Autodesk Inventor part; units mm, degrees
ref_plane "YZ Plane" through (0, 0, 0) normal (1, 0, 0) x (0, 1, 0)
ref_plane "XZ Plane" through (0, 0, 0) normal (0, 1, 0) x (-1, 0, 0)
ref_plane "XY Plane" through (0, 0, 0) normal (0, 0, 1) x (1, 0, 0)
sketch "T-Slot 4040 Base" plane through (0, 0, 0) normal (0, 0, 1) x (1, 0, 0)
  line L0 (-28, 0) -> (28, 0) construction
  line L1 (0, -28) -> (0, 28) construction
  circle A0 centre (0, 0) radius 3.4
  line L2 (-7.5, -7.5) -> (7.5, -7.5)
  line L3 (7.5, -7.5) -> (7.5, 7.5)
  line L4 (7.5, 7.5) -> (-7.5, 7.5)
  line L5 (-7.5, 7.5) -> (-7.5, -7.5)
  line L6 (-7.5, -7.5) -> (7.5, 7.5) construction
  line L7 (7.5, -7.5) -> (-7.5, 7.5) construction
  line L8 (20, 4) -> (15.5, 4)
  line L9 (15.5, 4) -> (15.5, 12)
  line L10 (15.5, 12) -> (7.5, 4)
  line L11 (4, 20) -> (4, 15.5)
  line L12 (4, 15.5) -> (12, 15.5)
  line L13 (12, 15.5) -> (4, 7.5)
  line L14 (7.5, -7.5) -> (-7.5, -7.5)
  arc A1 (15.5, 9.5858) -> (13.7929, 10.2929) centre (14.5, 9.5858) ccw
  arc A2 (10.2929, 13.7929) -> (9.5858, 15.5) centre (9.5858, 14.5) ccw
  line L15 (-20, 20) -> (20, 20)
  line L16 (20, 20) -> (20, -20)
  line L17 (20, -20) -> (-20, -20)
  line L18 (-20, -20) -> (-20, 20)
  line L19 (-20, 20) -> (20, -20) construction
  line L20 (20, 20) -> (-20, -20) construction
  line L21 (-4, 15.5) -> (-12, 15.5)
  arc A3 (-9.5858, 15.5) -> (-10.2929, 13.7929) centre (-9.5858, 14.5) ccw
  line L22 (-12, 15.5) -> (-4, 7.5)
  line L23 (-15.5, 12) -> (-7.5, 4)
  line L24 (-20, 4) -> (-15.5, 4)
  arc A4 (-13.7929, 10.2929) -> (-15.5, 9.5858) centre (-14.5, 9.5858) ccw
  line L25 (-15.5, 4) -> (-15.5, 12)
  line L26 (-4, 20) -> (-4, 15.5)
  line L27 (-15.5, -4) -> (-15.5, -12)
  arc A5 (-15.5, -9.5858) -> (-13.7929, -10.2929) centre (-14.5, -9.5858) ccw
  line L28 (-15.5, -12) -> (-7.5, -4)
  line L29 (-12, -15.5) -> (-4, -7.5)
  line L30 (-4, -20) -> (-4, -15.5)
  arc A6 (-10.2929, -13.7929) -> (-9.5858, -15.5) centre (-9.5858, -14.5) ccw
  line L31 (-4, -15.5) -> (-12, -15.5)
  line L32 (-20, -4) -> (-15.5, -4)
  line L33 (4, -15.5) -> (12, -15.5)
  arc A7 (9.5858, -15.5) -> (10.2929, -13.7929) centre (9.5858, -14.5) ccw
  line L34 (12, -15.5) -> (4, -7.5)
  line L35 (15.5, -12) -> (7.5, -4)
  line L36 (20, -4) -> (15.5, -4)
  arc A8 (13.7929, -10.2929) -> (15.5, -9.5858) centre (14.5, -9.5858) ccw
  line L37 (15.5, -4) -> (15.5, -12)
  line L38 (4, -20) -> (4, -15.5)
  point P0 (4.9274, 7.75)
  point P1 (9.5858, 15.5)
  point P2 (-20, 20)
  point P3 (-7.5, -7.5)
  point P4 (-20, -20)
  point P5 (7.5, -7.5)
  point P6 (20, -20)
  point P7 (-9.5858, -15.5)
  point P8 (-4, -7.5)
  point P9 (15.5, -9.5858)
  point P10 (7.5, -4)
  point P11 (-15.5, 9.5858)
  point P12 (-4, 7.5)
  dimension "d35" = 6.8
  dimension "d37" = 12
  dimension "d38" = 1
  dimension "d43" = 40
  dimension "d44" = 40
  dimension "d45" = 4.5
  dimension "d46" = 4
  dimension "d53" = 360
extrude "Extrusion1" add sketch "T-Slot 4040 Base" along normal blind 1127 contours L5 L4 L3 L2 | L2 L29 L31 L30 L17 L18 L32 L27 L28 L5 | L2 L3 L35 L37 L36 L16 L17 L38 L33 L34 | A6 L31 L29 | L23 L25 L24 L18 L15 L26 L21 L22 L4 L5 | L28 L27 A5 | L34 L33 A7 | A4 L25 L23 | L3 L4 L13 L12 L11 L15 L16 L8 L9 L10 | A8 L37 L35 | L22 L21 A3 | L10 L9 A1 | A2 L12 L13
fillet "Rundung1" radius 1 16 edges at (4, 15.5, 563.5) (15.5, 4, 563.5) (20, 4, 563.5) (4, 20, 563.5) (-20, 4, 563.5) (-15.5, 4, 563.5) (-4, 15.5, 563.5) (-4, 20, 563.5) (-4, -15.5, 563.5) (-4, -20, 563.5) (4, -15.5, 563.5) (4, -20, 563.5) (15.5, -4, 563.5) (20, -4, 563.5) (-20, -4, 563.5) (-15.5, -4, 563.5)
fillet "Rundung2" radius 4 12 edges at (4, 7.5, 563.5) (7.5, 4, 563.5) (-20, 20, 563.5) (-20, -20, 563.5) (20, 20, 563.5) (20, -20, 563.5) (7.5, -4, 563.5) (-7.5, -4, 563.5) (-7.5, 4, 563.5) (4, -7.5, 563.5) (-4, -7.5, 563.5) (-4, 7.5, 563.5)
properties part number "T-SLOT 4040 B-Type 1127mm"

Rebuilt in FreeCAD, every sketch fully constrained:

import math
import FreeCAD as App
import Part
import Sketcher


def edges_at(feature, points):
    """Names of the edges that pass closest to the given points."""
    edges = feature.Shape.Edges
    near = lambda p: min(range(len(edges)), key=lambda i: edges[i].distToShape(Part.Vertex(*p))[0])
    return sorted({f"Edge{near(p) + 1}" for p in points})

doc = App.newDocument("Part")
params = doc.addObject("Spreadsheet::Sheet", "Params")
for row, (alias, value) in enumerate([
    ("sketch1_radius", "1 mm"),
    ("sketch1_diameter", "6.8 mm"),
    ("sketch1_width", "4.5 mm"),
    ("sketch1_width2", "16 mm"),
    ("pad1_length", "1127 mm"),
    ("fillet_radius", "1 mm"),
    ("fillet2_radius", "4 mm"),
], start=1):
    params.set(f"A{row}", alias)
    params.set(f"B{row}", "=" + value)
    params.setAlias(f"B{row}", alias)

body = doc.addObject("PartDesign::Body", "Body")

# Sketch on XY plane
sketch1 = body.newObject("Sketcher::SketchObject", "Sketch")
sketch1.AttachmentSupport = (doc.getObject("XY_Plane"), [""])
sketch1.MapMode = "FlatFace"
sketch1.addGeometry(Part.LineSegment(App.Vector(-7.5, 4, 0), App.Vector(-7.5, -4, 0)), False)
sketch1.addGeometry(Part.LineSegment(App.Vector(-7.5, -4, 0), App.Vector(-13.8, -10.3, 0)), False)
sketch1.addGeometry(Part.ArcOfCircle(Part.Circle(App.Vector(-14.5, -9.6, 0), App.Vector(0, 0, 1), 1), math.radians(180), math.radians(315)), False)
sketch1.addGeometry(Part.LineSegment(App.Vector(-15.5, -9.6, 0), App.Vector(-15.5, -4, 0)), False)
sketch1.addGeometry(Part.LineSegment(App.Vector(-15.5, -4, 0), App.Vector(-20, -4, 0)), False)
sketch1.addGeometry(Part.LineSegment(App.Vector(-20, -4, 0), App.Vector(-20, -20, 0)), False)
sketch1.addGeometry(Part.LineSegment(App.Vector(-20, -20, 0), App.Vector(-4, -20, 0)), False)
sketch1.addGeometry(Part.LineSegment(App.Vector(-4, -20, 0), App.Vector(-4, -15.5, 0)), False)
sketch1.addGeometry(Part.LineSegment(App.Vector(-4, -15.5, 0), App.Vector(-9.6, -15.5, 0)), False)
sketch1.addGeometry(Part.ArcOfCircle(Part.Circle(App.Vector(-9.6, -14.5, 0), App.Vector(0, 0, 1), 1), math.radians(135), math.radians(270)), False)
sketch1.addGeometry(Part.LineSegment(App.Vector(-10.3, -13.8, 0), App.Vector(-4, -7.5, 0)), False)
sketch1.addGeometry(Part.LineSegment(App.Vector(-4, -7.5, 0), App.Vector(4, -7.5, 0)), False)
sketch1.addGeometry(Part.LineSegment(App.Vector(4, -7.5, 0), App.Vector(10.3, -13.8, 0)), False)
sketch1.addGeometry(Part.ArcOfCircle(Part.Circle(App.Vector(9.6, -14.5, 0), App.Vector(0, 0, 1), 1), math.radians(-90), math.radians(45)), False)
sketch1.addGeometry(Part.LineSegment(App.Vector(9.6, -15.5, 0), App.Vector(4, -15.5, 0)), False)
sketch1.addGeometry(Part.LineSegment(App.Vector(4, -15.5, 0), App.Vector(4, -20, 0)), False)
sketch1.addGeometry(Part.LineSegment(App.Vector(4, -20, 0), App.Vector(20, -20, 0)), False)
sketch1.addGeometry(Part.LineSegment(App.Vector(20, -20, 0), App.Vector(20, -4, 0)), False)
sketch1.addGeometry(Part.LineSegment(App.Vector(20, -4, 0), App.Vector(15.5, -4, 0)), False)
sketch1.addGeometry(Part.LineSegment(App.Vector(15.5, -4, 0), App.Vector(15.5, -9.6, 0)), False)
sketch1.addGeometry(Part.ArcOfCircle(Part.Circle(App.Vector(14.5, -9.6, 0), App.Vector(0, 0, 1), 1), math.radians(-135), math.radians(0)), False)
sketch1.addGeometry(Part.LineSegment(App.Vector(13.8, -10.3, 0), App.Vector(7.5, -4, 0)), False)
sketch1.addGeometry(Part.LineSegment(App.Vector(7.5, -4, 0), App.Vector(7.5, 4, 0)), False)
sketch1.addGeometry(Part.LineSegment(App.Vector(7.5, 4, 0), App.Vector(13.8, 10.3, 0)), False)
sketch1.addGeometry(Part.ArcOfCircle(Part.Circle(App.Vector(14.5, 9.6, 0), App.Vector(0, 0, 1), 1), math.radians(0), math.radians(135)), False)
sketch1.addGeometry(Part.LineSegment(App.Vector(15.5, 9.6, 0), App.Vector(15.5, 4, 0)), False)
sketch1.addGeometry(Part.LineSegment(App.Vector(15.5, 4, 0), App.Vector(20, 4, 0)), False)
sketch1.addGeometry(Part.LineSegment(App.Vector(20, 4, 0), App.Vector(20, 20, 0)), False)
sketch1.addGeometry(Part.LineSegment(App.Vector(20, 20, 0), App.Vector(4, 20, 0)), False)
sketch1.addGeometry(Part.LineSegment(App.Vector(4, 20, 0), App.Vector(4, 15.5, 0)), False)
sketch1.addGeometry(Part.LineSegment(App.Vector(4, 15.5, 0), App.Vector(9.6, 15.5, 0)), False)
sketch1.addGeometry(Part.ArcOfCircle(Part.Circle(App.Vector(9.6, 14.5, 0), App.Vector(0, 0, 1), 1), math.radians(-45), math.radians(90)), False)
sketch1.addGeometry(Part.LineSegment(App.Vector(10.3, 13.8, 0), App.Vector(4, 7.5, 0)), False)
sketch1.addGeometry(Part.LineSegment(App.Vector(4, 7.5, 0), App.Vector(-4, 7.5, 0)), False)
sketch1.addGeometry(Part.LineSegment(App.Vector(-4, 7.5, 0), App.Vector(-10.3, 13.8, 0)), False)
sketch1.addGeometry(Part.ArcOfCircle(Part.Circle(App.Vector(-9.6, 14.5, 0), App.Vector(0, 0, 1), 1), math.radians(90), math.radians(225)), False)
sketch1.addGeometry(Part.LineSegment(App.Vector(-9.6, 15.5, 0), App.Vector(-4, 15.5, 0)), False)
sketch1.addGeometry(Part.LineSegment(App.Vector(-4, 15.5, 0), App.Vector(-4, 20, 0)), False)
sketch1.addGeometry(Part.LineSegment(App.Vector(-4, 20, 0), App.Vector(-20, 20, 0)), False)
sketch1.addGeometry(Part.LineSegment(App.Vector(-20, 20, 0), App.Vector(-20, 4, 0)), False)
sketch1.addGeometry(Part.LineSegment(App.Vector(-20, 4, 0), App.Vector(-15.5, 4, 0)), False)
sketch1.addGeometry(Part.LineSegment(App.Vector(-15.5, 4, 0), App.Vector(-15.5, 9.6, 0)), False)
sketch1.addGeometry(Part.ArcOfCircle(Part.Circle(App.Vector(-14.5, 9.6, 0), App.Vector(0, 0, 1), 1), math.radians(45), math.radians(180)), False)
sketch1.addGeometry(Part.LineSegment(App.Vector(-13.8, 10.3, 0), App.Vector(-7.5, 4, 0)), False)
sketch1.addGeometry(Part.Circle(App.Vector(0, 0, 0), App.Vector(0, 0, 1), 3.4), False)
sketch1.addConstraint(Sketcher.Constraint("Coincident", 0, 2, 1, 1))
sketch1.addConstraint(Sketcher.Constraint("Tangent", 1, 2, 2, 2))
sketch1.addConstraint(Sketcher.Constraint("Tangent", 2, 1, 3, 1))
sketch1.addConstraint(Sketcher.Constraint("Coincident", 3, 2, 4, 1))
sketch1.addConstraint(Sketcher.Constraint("Coincident", 4, 2, 5, 1))
sketch1.addConstraint(Sketcher.Constraint("Coincident", 5, 2, 6, 1))
sketch1.addConstraint(Sketcher.Constraint("Coincident", 6, 2, 7, 1))
sketch1.addConstraint(Sketcher.Constraint("Coincident", 7, 2, 8, 1))
sketch1.addConstraint(Sketcher.Constraint("Tangent", 8, 2, 9, 2))
sketch1.addConstraint(Sketcher.Constraint("Tangent", 9, 1, 10, 1))
sketch1.addConstraint(Sketcher.Constraint("Coincident", 10, 2, 11, 1))
sketch1.addConstraint(Sketcher.Constraint("Coincident", 11, 2, 12, 1))
sketch1.addConstraint(Sketcher.Constraint("Tangent", 12, 2, 13, 2))
sketch1.addConstraint(Sketcher.Constraint("Tangent", 13, 1, 14, 1))
sketch1.addConstraint(Sketcher.Constraint("Coincident", 14, 2, 15, 1))
sketch1.addConstraint(Sketcher.Constraint("Coincident", 15, 2, 16, 1))
sketch1.addConstraint(Sketcher.Constraint("Coincident", 16, 2, 17, 1))
sketch1.addConstraint(Sketcher.Constraint("Coincident", 17, 2, 18, 1))
sketch1.addConstraint(Sketcher.Constraint("Coincident", 18, 2, 19, 1))
sketch1.addConstraint(Sketcher.Constraint("Tangent", 19, 2, 20, 2))
sketch1.addConstraint(Sketcher.Constraint("Tangent", 20, 1, 21, 1))
sketch1.addConstraint(Sketcher.Constraint("Coincident", 21, 2, 22, 1))
sketch1.addConstraint(Sketcher.Constraint("Coincident", 22, 2, 23, 1))
sketch1.addConstraint(Sketcher.Constraint("Tangent", 23, 2, 24, 2))
sketch1.addConstraint(Sketcher.Constraint("Tangent", 24, 1, 25, 1))
sketch1.addConstraint(Sketcher.Constraint("Coincident", 25, 2, 26, 1))
sketch1.addConstraint(Sketcher.Constraint("Coincident", 26, 2, 27, 1))
sketch1.addConstraint(Sketcher.Constraint("Coincident", 27, 2, 28, 1))
sketch1.addConstraint(Sketcher.Constraint("Coincident", 28, 2, 29, 1))
sketch1.addConstraint(Sketcher.Constraint("Coincident", 29, 2, 30, 1))
sketch1.addConstraint(Sketcher.Constraint("Tangent", 30, 2, 31, 2))
sketch1.addConstraint(Sketcher.Constraint("Tangent", 31, 1, 32, 1))
sketch1.addConstraint(Sketcher.Constraint("Coincident", 32, 2, 33, 1))
sketch1.addConstraint(Sketcher.Constraint("Coincident", 33, 2, 34, 1))
sketch1.addConstraint(Sketcher.Constraint("Tangent", 34, 2, 35, 2))
sketch1.addConstraint(Sketcher.Constraint("Tangent", 35, 1, 36, 1))
sketch1.addConstraint(Sketcher.Constraint("Coincident", 36, 2, 37, 1))
sketch1.addConstraint(Sketcher.Constraint("Coincident", 37, 2, 38, 1))
sketch1.addConstraint(Sketcher.Constraint("Coincident", 38, 2, 39, 1))
sketch1.addConstraint(Sketcher.Constraint("Coincident", 39, 2, 40, 1))
sketch1.addConstraint(Sketcher.Constraint("Coincident", 40, 2, 41, 1))
sketch1.addConstraint(Sketcher.Constraint("Tangent", 41, 2, 42, 2))
sketch1.addConstraint(Sketcher.Constraint("Tangent", 42, 1, 43, 1))
sketch1.addConstraint(Sketcher.Constraint("Coincident", 43, 2, 0, 1))
sketch1.addConstraint(Sketcher.Constraint("Vertical", 0))
sketch1.addConstraint(Sketcher.Constraint("Vertical", 3))
sketch1.addConstraint(Sketcher.Constraint("Horizontal", 4))
sketch1.addConstraint(Sketcher.Constraint("Vertical", 5))
sketch1.addConstraint(Sketcher.Constraint("Horizontal", 6))
sketch1.addConstraint(Sketcher.Constraint("Vertical", 7))
sketch1.addConstraint(Sketcher.Constraint("Horizontal", 8))
sketch1.addConstraint(Sketcher.Constraint("Horizontal", 11))
sketch1.addConstraint(Sketcher.Constraint("Horizontal", 14))
sketch1.addConstraint(Sketcher.Constraint("Vertical", 15))
sketch1.addConstraint(Sketcher.Constraint("Horizontal", 16))
sketch1.addConstraint(Sketcher.Constraint("Vertical", 17))
sketch1.addConstraint(Sketcher.Constraint("Horizontal", 18))
sketch1.addConstraint(Sketcher.Constraint("Vertical", 19))
sketch1.addConstraint(Sketcher.Constraint("Vertical", 22))
sketch1.addConstraint(Sketcher.Constraint("Vertical", 25))
sketch1.addConstraint(Sketcher.Constraint("Horizontal", 26))
sketch1.addConstraint(Sketcher.Constraint("Vertical", 27))
sketch1.addConstraint(Sketcher.Constraint("Horizontal", 28))
sketch1.addConstraint(Sketcher.Constraint("Vertical", 29))
sketch1.addConstraint(Sketcher.Constraint("Horizontal", 30))
sketch1.addConstraint(Sketcher.Constraint("Horizontal", 33))
sketch1.addConstraint(Sketcher.Constraint("Horizontal", 36))
sketch1.addConstraint(Sketcher.Constraint("Vertical", 37))
sketch1.addConstraint(Sketcher.Constraint("Horizontal", 38))
sketch1.addConstraint(Sketcher.Constraint("Vertical", 39))
sketch1.addConstraint(Sketcher.Constraint("Horizontal", 40))
sketch1.addConstraint(Sketcher.Constraint("Vertical", 41))
sketch1.addConstraint(Sketcher.Constraint("Coincident", 44, 3, -1, 1))
sketch1.addConstraint(Sketcher.Constraint("Equal", 2, 9))
sketch1.addConstraint(Sketcher.Constraint("Equal", 9, 13))
sketch1.addConstraint(Sketcher.Constraint("Equal", 13, 20))
sketch1.addConstraint(Sketcher.Constraint("Equal", 20, 24))
sketch1.addConstraint(Sketcher.Constraint("Equal", 24, 31))
sketch1.addConstraint(Sketcher.Constraint("Equal", 31, 35))
sketch1.addConstraint(Sketcher.Constraint("Equal", 35, 42))
sketch1.addConstraint(Sketcher.Constraint("Symmetric", 2, 3, 24, 3, -1, 1))
sketch1.addConstraint(Sketcher.Constraint("Symmetric", 9, 3, 31, 3, -1, 1))
sketch1.addConstraint(Sketcher.Constraint("Symmetric", 13, 3, 35, 3, -1, 1))
sketch1.addConstraint(Sketcher.Constraint("Symmetric", 20, 3, 42, 3, -1, 1))
sketch1.addConstraint(Sketcher.Constraint("Symmetric", 0, 2, 22, 2, -1, 1))
sketch1.addConstraint(Sketcher.Constraint("Symmetric", 4, 2, 26, 2, -1, 1))
sketch1.addConstraint(Sketcher.Constraint("Symmetric", 6, 2, 28, 2, -1, 1))
sketch1.addConstraint(Sketcher.Constraint("Symmetric", 10, 2, 32, 2, -1, 1))
sketch1.addConstraint(Sketcher.Constraint("Symmetric", 15, 2, 37, 2, -1, 1))
sketch1.addConstraint(Sketcher.Constraint("Symmetric", 17, 2, 39, 2, -1, 1))
sketch1.addConstraint(Sketcher.Constraint("Symmetric", 9, 3, 13, 3, -2))
sketch1.addConstraint(Sketcher.Constraint("Symmetric", 2, 3, 20, 3, -2))
sketch1.addConstraint(Sketcher.Constraint("Symmetric", 6, 2, 15, 2, -2))
sketch1.addConstraint(Sketcher.Constraint("Symmetric", 4, 2, 17, 2, -2))
sketch1.addConstraint(Sketcher.Constraint("Parallel", 1, 10))
sketch1.addConstraint(Sketcher.Constraint("Perpendicular", 10, 12))
sketch1.addConstraint(Sketcher.Constraint("Parallel", 12, 21))
sketch1.addConstraint(Sketcher.Constraint("Perpendicular", 32, 34))
sketch1.addConstraint(Sketcher.Constraint("Parallel", 34, 43))
sketch1.addConstraint(Sketcher.Constraint("Horizontal", 0, 2, 3, 2))
sketch1.addConstraint(Sketcher.Constraint("Horizontal", 9, 1, 12, 2))
sketch1.addConstraint(Sketcher.Constraint("Vertical", 7, 2, 10, 2))
sketch1.addConstraint(Sketcher.Constraint("Equal", 33, 0))
sketch1.addConstraint(Sketcher.Constraint("Equal", 36, 3))
sketch1.addConstraint(Sketcher.Constraint("Equal", 38, 5))
sketch1.addConstraint(Sketcher.Constraint("Equal", 40, 7))
sketch1.addConstraint(Sketcher.Constraint("Radius", 2, 1.0))
sketch1.addConstraint(Sketcher.Constraint("Diameter", 44, 6.8))
sketch1.addConstraint(Sketcher.Constraint("DistanceX", 4, 2, 4, 1, 4.5))
sketch1.addConstraint(Sketcher.Constraint("DistanceY", 0, 2, -1, 1, 4.0))
sketch1.addConstraint(Sketcher.Constraint("DistanceX", 6, 1, 6, 2, 16.0))
sketch1.addConstraint(Sketcher.Constraint("DistanceX", 2, 3, 0, 2, 7.0))
sketch1.setExpression("Constraints[106]", "Params.sketch1_radius")
sketch1.setExpression("Constraints[107]", "Params.sketch1_diameter")
sketch1.setExpression("Constraints[108]", "Params.sketch1_width")
sketch1.setExpression("Constraints[110]", "Params.sketch1_width2")
pad1 = body.newObject("PartDesign::Pad", "Pad")
pad1.Profile = sketch1
pad1.setExpression("Length", "Params.pad1_length")
doc.recompute()

fillet = body.newObject("PartDesign::Fillet", "Fillet")
fillet.Base = (pad1, edges_at(pad1, [
    (4, 15.5, 563.5),
    (15.5, 4, 563.5),
    (20, 4, 563.5),
    (4, 20, 563.5),
    (-20, 4, 563.5),
    (-15.5, 4, 563.5),
    (-4, 15.5, 563.5),
    (-4, 20, 563.5),
    (-4, -15.5, 563.5),
    (-4, -20, 563.5),
    (4, -15.5, 563.5),
    (4, -20, 563.5),
    (15.5, -4, 563.5),
    (20, -4, 563.5),
    (-20, -4, 563.5),
    (-15.5, -4, 563.5),
]))
fillet.setExpression("Radius", "Params.fillet_radius")
doc.recompute()

fillet2 = body.newObject("PartDesign::Fillet", "Fillet001")
fillet2.Base = (fillet, edges_at(fillet, [
    (4, 7.5, 563.5),
    (7.5, 4, 563.5),
    (-20, 20, 563.5),
    (-20, -20, 563.5),
    (20, 20, 563.5),
    (20, -20, 563.5),
    (7.5, -4, 563.5),
    (-7.5, -4, 563.5),
    (-7.5, 4, 563.5),
    (4, -7.5, 563.5),
    (-4, -7.5, 563.5),
    (-4, 7.5, 563.5),
]))
fillet2.setExpression("Radius", "Params.fillet2_radius")

doc.recompute()
